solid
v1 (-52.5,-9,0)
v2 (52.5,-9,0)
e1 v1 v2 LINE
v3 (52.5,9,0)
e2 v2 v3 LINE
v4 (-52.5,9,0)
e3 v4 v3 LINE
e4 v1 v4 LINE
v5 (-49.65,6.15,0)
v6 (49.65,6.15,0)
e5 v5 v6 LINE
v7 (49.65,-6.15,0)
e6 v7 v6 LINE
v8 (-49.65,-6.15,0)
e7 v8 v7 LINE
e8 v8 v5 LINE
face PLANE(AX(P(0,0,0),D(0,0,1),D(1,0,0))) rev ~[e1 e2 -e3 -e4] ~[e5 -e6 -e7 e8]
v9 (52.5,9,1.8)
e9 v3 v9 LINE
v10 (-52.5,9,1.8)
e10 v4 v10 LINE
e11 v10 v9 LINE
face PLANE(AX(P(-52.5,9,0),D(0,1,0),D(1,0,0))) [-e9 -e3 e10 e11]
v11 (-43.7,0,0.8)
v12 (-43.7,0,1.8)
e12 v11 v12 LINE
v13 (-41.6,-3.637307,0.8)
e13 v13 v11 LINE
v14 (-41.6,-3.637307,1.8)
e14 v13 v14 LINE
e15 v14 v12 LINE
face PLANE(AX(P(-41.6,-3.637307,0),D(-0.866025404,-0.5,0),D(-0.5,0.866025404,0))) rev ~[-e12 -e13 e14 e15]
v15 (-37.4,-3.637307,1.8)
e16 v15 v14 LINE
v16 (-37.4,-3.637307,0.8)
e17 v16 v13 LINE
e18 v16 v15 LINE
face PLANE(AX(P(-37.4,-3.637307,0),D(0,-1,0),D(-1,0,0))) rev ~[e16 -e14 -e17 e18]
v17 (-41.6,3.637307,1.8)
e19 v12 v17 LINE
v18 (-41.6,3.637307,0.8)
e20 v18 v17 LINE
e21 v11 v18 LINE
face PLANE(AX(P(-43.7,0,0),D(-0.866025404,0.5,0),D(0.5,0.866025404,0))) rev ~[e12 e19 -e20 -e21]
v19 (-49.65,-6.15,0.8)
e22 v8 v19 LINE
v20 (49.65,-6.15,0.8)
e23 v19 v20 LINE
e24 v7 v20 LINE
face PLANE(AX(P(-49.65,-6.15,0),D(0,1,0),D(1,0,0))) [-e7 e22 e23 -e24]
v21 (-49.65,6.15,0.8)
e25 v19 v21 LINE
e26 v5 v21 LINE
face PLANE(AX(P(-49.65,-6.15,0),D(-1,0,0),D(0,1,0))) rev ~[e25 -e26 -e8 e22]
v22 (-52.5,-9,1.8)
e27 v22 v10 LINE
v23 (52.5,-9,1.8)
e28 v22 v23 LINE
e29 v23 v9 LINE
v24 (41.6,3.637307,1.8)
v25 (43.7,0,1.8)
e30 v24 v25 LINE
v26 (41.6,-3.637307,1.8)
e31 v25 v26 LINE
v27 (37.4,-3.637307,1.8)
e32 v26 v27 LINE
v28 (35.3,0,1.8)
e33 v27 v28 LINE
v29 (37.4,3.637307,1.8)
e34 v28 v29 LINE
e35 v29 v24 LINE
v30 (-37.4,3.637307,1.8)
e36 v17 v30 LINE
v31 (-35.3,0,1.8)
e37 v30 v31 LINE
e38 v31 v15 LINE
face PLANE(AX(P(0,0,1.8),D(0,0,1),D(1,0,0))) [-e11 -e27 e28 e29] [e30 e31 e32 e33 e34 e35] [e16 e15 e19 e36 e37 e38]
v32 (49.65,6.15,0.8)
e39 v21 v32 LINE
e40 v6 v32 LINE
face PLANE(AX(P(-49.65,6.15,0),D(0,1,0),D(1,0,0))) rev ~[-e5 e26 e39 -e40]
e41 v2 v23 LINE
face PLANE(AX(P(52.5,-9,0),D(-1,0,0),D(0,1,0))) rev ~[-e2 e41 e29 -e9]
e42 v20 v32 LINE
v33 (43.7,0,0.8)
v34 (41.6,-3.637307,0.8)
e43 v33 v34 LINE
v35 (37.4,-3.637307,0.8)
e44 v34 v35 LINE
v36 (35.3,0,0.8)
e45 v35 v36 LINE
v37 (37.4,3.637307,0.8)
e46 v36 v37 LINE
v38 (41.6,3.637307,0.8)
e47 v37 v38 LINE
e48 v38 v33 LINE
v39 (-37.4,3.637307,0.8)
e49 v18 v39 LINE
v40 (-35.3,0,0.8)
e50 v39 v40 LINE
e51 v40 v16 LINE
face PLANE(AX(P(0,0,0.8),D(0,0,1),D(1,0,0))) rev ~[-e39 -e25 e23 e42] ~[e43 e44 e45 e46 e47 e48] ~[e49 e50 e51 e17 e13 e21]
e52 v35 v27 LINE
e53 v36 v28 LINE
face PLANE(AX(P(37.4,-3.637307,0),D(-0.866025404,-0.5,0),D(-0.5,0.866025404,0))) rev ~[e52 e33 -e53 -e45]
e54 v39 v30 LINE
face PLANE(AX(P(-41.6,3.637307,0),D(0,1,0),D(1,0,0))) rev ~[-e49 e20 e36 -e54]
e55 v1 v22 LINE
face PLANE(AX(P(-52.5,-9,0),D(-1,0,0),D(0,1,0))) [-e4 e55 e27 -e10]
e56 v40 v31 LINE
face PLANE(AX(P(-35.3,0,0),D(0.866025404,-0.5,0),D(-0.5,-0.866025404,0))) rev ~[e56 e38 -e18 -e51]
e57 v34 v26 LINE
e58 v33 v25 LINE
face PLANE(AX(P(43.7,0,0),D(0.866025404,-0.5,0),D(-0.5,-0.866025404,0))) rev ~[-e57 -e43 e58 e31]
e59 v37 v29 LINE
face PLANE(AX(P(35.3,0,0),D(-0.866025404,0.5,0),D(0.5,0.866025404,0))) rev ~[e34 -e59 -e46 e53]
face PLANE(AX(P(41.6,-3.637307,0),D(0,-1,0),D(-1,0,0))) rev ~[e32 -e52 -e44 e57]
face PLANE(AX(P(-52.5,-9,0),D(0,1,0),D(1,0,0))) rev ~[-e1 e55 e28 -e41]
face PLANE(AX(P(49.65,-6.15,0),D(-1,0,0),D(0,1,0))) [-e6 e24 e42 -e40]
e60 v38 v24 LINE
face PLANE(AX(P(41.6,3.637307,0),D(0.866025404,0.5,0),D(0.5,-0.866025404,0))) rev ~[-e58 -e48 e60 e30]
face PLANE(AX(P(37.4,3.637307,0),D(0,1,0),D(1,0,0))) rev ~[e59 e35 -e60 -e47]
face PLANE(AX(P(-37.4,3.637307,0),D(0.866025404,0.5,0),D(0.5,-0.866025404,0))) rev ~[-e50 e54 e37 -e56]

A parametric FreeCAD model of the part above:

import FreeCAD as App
import Part
import Sketcher
Q = App.Units.Quantity

doc = App.newDocument("Part")
body = doc.addObject("PartDesign::Body", "Body")

sketch1 = body.newObject("Sketcher::SketchObject", "Sketch")
sketch1.AttachmentSupport = (doc.getObject("XY_Plane"), [""])
sketch1.MapMode = "FlatFace"
sketch1.addGeometry(Part.LineSegment(App.Vector(-52.5, 9, 0), App.Vector(-52.5, -9, 0)), False)
sketch1.addGeometry(Part.LineSegment(App.Vector(-52.5, -9, 0), App.Vector(52.5, -9, 0)), False)
sketch1.addGeometry(Part.LineSegment(App.Vector(52.5, -9, 0), App.Vector(52.5, 9, 0)), False)
sketch1.addGeometry(Part.LineSegment(App.Vector(52.5, 9, 0), App.Vector(-52.5, 9, 0)), False)
sketch1.addGeometry(Part.LineSegment(App.Vector(-37.4, -3.6, 0), App.Vector(-41.6, -3.6, 0)), False)
sketch1.addGeometry(Part.LineSegment(App.Vector(-41.6, -3.6, 0), App.Vector(-43.7, 0, 0)), False)
sketch1.addGeometry(Part.LineSegment(App.Vector(-43.7, 0, 0), App.Vector(-41.6, 3.6, 0)), False)
sketch1.addGeometry(Part.LineSegment(App.Vector(-41.6, 3.6, 0), App.Vector(-37.4, 3.6, 0)), False)
sketch1.addGeometry(Part.LineSegment(App.Vector(-37.4, 3.6, 0), App.Vector(-35.3, 0, 0)), False)
sketch1.addGeometry(Part.LineSegment(App.Vector(-35.3, 0, 0), App.Vector(-37.4, -3.6, 0)), False)
sketch1.addGeometry(Part.LineSegment(App.Vector(41.6, -3.6, 0), App.Vector(37.4, -3.6, 0)), False)
sketch1.addGeometry(Part.LineSegment(App.Vector(37.4, -3.6, 0), App.Vector(35.3, 0, 0)), False)
sketch1.addGeometry(Part.LineSegment(App.Vector(35.3, 0, 0), App.Vector(37.4, 3.6, 0)), False)
sketch1.addGeometry(Part.LineSegment(App.Vector(37.4, 3.6, 0), App.Vector(41.6, 3.6, 0)), False)
sketch1.addGeometry(Part.LineSegment(App.Vector(41.6, 3.6, 0), App.Vector(43.7, 0, 0)), False)
sketch1.addGeometry(Part.LineSegment(App.Vector(43.7, 0, 0), App.Vector(41.6, -3.6, 0)), False)
sketch1.addConstraint(Sketcher.Constraint("Coincident", 0, 2, 1, 1))
sketch1.addConstraint(Sketcher.Constraint("Coincident", 1, 2, 2, 1))
sketch1.addConstraint(Sketcher.Constraint("Coincident", 2, 2, 3, 1))
sketch1.addConstraint(Sketcher.Constraint("Coincident", 3, 2, 0, 1))
sketch1.addConstraint(Sketcher.Constraint("Coincident", 4, 2, 5, 1))
sketch1.addConstraint(Sketcher.Constraint("Coincident", 5, 2, 6, 1))
sketch1.addConstraint(Sketcher.Constraint("Coincident", 6, 2, 7, 1))
sketch1.addConstraint(Sketcher.Constraint("Coincident", 7, 2, 8, 1))
sketch1.addConstraint(Sketcher.Constraint("Coincident", 8, 2, 9, 1))
sketch1.addConstraint(Sketcher.Constraint("Coincident", 9, 2, 4, 1))
sketch1.addConstraint(Sketcher.Constraint("Coincident", 10, 2, 11, 1))
sketch1.addConstraint(Sketcher.Constraint("Coincident", 11, 2, 12, 1))
sketch1.addConstraint(Sketcher.Constraint("Coincident", 12, 2, 13, 1))
sketch1.addConstraint(Sketcher.Constraint("Coincident", 13, 2, 14, 1))
sketch1.addConstraint(Sketcher.Constraint("Coincident", 14, 2, 15, 1))
sketch1.addConstraint(Sketcher.Constraint("Coincident", 15, 2, 10, 1))
sketch1.addConstraint(Sketcher.Constraint("Vertical", 0))
sketch1.addConstraint(Sketcher.Constraint("Horizontal", 1))
sketch1.addConstraint(Sketcher.Constraint("Vertical", 2))
sketch1.addConstraint(Sketcher.Constraint("Horizontal", 3))
sketch1.addConstraint(Sketcher.Constraint("Horizontal", 4))
sketch1.addConstraint(Sketcher.Constraint("Horizontal", 7))
sketch1.addConstraint(Sketcher.Constraint("Horizontal", 10))
sketch1.addConstraint(Sketcher.Constraint("Horizontal", 13))
sketch1.addConstraint(Sketcher.Constraint("Symmetric", 0, 2, 2, 2, -1, 1))
sketch1.addConstraint(Sketcher.Constraint("Symmetric", 7, 2, 10, 2, -1, 1))
sketch1.addConstraint(Sketcher.Constraint("Symmetric", 8, 2, 11, 2, -1, 1))
sketch1.addConstraint(Sketcher.Constraint("Symmetric", 9, 2, 12, 2, -1, 1))
sketch1.addConstraint(Sketcher.Constraint("Symmetric", 5, 2, 14, 2, -1, 1))
sketch1.addConstraint(Sketcher.Constraint("Symmetric", 9, 2, 10, 2, -2))
sketch1.addConstraint(Sketcher.Constraint("PointOnObject", 5, 2, -1))
sketch1.addConstraint(Sketcher.Constraint("PointOnObject", 8, 2, -1))
sketch1.addConstraint(Sketcher.Constraint("Parallel", 5, 8))
sketch1.addConstraint(Sketcher.Constraint("Parallel", 6, 9))
sketch1.addConstraint(Sketcher.Constraint("Parallel", 11, 14))
sketch1.addConstraint(Sketcher.Constraint("Parallel", 12, 15))
sketch1.addConstraint(Sketcher.Constraint("DistanceX", 1, 1, 1, 2, Q("105 mm")))
sketch1.addConstraint(Sketcher.Constraint("DistanceY", 0, 2, 0, 1, Q("18 mm")))
sketch1.addConstraint(Sketcher.Constraint("Angle", 5, Q("120 deg")))
sketch1.addConstraint(Sketcher.Constraint("DistanceX", 4, 2, 4, 1, Q("4.2 mm")))
sketch1.addConstraint(Sketcher.Constraint("Distance", 5, Q("4.2 mm")))
sketch1.addConstraint(Sketcher.Constraint("DistanceX", 4, 2, -1, 1, Q("41.6 mm")))
pad1 = body.newObject("PartDesign::Pad", "Pad")
pad1.Profile = sketch1
pad1.Length = 1.8

sketch2 = body.newObject("Sketcher::SketchObject", "Sketch001")
sketch2.AttachmentSupport = (doc.getObject("XY_Plane"), [""])
sketch2.MapMode = "FlatFace"
sketch2.addGeometry(Part.LineSegment(App.Vector(-49.6, 6.2, 0), App.Vector(-49.6, -6.2, 0)), False)
sketch2.addGeometry(Part.LineSegment(App.Vector(-49.6, -6.2, 0), App.Vector(49.6, -6.2, 0)), False)
sketch2.addGeometry(Part.LineSegment(App.Vector(49.6, -6.2, 0), App.Vector(49.6, 6.2, 0)), False)
sketch2.addGeometry(Part.LineSegment(App.Vector(49.6, 6.2, 0), App.Vector(-49.6, 6.2, 0)), False)
sketch2.addGeometry(Part.LineSegment(App.Vector(-37.4, -3.6, 0), App.Vector(-41.6, -3.6, 0)), False)
sketch2.addGeometry(Part.LineSegment(App.Vector(-41.6, -3.6, 0), App.Vector(-43.7, 0, 0)), False)
sketch2.addGeometry(Part.LineSegment(App.Vector(-43.7, 0, 0), App.Vector(-41.6, 3.6, 0)), False)
sketch2.addGeometry(Part.LineSegment(App.Vector(-41.6, 3.6, 0), App.Vector(-37.4, 3.6, 0)), False)
sketch2.addGeometry(Part.LineSegment(App.Vector(-37.4, 3.6, 0), App.Vector(-35.3, 0, 0)), False)
sketch2.addGeometry(Part.LineSegment(App.Vector(-35.3, 0, 0), App.Vector(-37.4, -3.6, 0)), False)
sketch2.addGeometry(Part.LineSegment(App.Vector(41.6, -3.6, 0), App.Vector(37.4, -3.6, 0)), False)
sketch2.addGeometry(Part.LineSegment(App.Vector(37.4, -3.6, 0), App.Vector(35.3, 0, 0)), False)
sketch2.addGeometry(Part.LineSegment(App.Vector(35.3, 0, 0), App.Vector(37.4, 3.6, 0)), False)
sketch2.addGeometry(Part.LineSegment(App.Vector(37.4, 3.6, 0), App.Vector(41.6, 3.6, 0)), False)
sketch2.addGeometry(Part.LineSegment(App.Vector(41.6, 3.6, 0), App.Vector(43.7, 0, 0)), False)
sketch2.addGeometry(Part.LineSegment(App.Vector(43.7, 0, 0), App.Vector(41.6, -3.6, 0)), False)
sketch2.addConstraint(Sketcher.Constraint("Coincident", 0, 2, 1, 1))
sketch2.addConstraint(Sketcher.Constraint("Coincident", 1, 2, 2, 1))
sketch2.addConstraint(Sketcher.Constraint("Coincident", 2, 2, 3, 1))
sketch2.addConstraint(Sketcher.Constraint("Coincident", 3, 2, 0, 1))
sketch2.addConstraint(Sketcher.Constraint("Coincident", 4, 2, 5, 1))
sketch2.addConstraint(Sketcher.Constraint("Coincident", 5, 2, 6, 1))
sketch2.addConstraint(Sketcher.Constraint("Coincident", 6, 2, 7, 1))
sketch2.addConstraint(Sketcher.Constraint("Coincident", 7, 2, 8, 1))
sketch2.addConstraint(Sketcher.Constraint("Coincident", 8, 2, 9, 1))
sketch2.addConstraint(Sketcher.Constraint("Coincident", 9, 2, 4, 1))
sketch2.addConstraint(Sketcher.Constraint("Coincident", 10, 2, 11, 1))
sketch2.addConstraint(Sketcher.Constraint("Coincident", 11, 2, 12, 1))
sketch2.addConstraint(Sketcher.Constraint("Coincident", 12, 2, 13, 1))
sketch2.addConstraint(Sketcher.Constraint("Coincident", 13, 2, 14, 1))
sketch2.addConstraint(Sketcher.Constraint("Coincident", 14, 2, 15, 1))
sketch2.addConstraint(Sketcher.Constraint("Coincident", 15, 2, 10, 1))
sketch2.addConstraint(Sketcher.Constraint("Vertical", 0))
sketch2.addConstraint(Sketcher.Constraint("Horizontal", 1))
sketch2.addConstraint(Sketcher.Constraint("Vertical", 2))
sketch2.addConstraint(Sketcher.Constraint("Horizontal", 3))
sketch2.addConstraint(Sketcher.Constraint("Horizontal", 4))
sketch2.addConstraint(Sketcher.Constraint("Horizontal", 7))
sketch2.addConstraint(Sketcher.Constraint("Horizontal", 10))
sketch2.addConstraint(Sketcher.Constraint("Horizontal", 13))
sketch2.addConstraint(Sketcher.Constraint("Symmetric", 0, 2, 2, 2, -1, 1))
sketch2.addConstraint(Sketcher.Constraint("Symmetric", 7, 2, 10, 2, -1, 1))
sketch2.addConstraint(Sketcher.Constraint("Symmetric", 8, 2, 11, 2, -1, 1))
sketch2.addConstraint(Sketcher.Constraint("Symmetric", 9, 2, 12, 2, -1, 1))
sketch2.addConstraint(Sketcher.Constraint("Symmetric", 5, 2, 14, 2, -1, 1))
sketch2.addConstraint(Sketcher.Constraint("Symmetric", 9, 2, 10, 2, -2))
sketch2.addConstraint(Sketcher.Constraint("PointOnObject", 5, 2, -1))
sketch2.addConstraint(Sketcher.Constraint("PointOnObject", 8, 2, -1))
sketch2.addConstraint(Sketcher.Constraint("Parallel", 5, 8))
sketch2.addConstraint(Sketcher.Constraint("Parallel", 6, 9))
sketch2.addConstraint(Sketcher.Constraint("Parallel", 11, 14))
sketch2.addConstraint(Sketcher.Constraint("Parallel", 12, 15))
sketch2.addConstraint(Sketcher.Constraint("Angle", 5, Q("120 deg")))
sketch2.addConstraint(Sketcher.Constraint("DistanceX", 1, 1, 1, 2, Q("99.3 mm")))
sketch2.addConstraint(Sketcher.Constraint("DistanceX", 4, 2, 4, 1, Q("4.2 mm")))
sketch2.addConstraint(Sketcher.Constraint("DistanceY", 0, 2, 0, 1, Q("12.3 mm")))
sketch2.addConstraint(Sketcher.Constraint("Distance", 5, Q("4.2 mm")))
sketch2.addConstraint(Sketcher.Constraint("DistanceX", 4, 2, -1, 1, Q("41.6 mm")))
pocket1 = body.newObject("PartDesign::Pocket", "Pocket")
pocket1.Profile = sketch2
pocket1.Length = 0.8
pocket1.Reversed = True

doc.recompute()
